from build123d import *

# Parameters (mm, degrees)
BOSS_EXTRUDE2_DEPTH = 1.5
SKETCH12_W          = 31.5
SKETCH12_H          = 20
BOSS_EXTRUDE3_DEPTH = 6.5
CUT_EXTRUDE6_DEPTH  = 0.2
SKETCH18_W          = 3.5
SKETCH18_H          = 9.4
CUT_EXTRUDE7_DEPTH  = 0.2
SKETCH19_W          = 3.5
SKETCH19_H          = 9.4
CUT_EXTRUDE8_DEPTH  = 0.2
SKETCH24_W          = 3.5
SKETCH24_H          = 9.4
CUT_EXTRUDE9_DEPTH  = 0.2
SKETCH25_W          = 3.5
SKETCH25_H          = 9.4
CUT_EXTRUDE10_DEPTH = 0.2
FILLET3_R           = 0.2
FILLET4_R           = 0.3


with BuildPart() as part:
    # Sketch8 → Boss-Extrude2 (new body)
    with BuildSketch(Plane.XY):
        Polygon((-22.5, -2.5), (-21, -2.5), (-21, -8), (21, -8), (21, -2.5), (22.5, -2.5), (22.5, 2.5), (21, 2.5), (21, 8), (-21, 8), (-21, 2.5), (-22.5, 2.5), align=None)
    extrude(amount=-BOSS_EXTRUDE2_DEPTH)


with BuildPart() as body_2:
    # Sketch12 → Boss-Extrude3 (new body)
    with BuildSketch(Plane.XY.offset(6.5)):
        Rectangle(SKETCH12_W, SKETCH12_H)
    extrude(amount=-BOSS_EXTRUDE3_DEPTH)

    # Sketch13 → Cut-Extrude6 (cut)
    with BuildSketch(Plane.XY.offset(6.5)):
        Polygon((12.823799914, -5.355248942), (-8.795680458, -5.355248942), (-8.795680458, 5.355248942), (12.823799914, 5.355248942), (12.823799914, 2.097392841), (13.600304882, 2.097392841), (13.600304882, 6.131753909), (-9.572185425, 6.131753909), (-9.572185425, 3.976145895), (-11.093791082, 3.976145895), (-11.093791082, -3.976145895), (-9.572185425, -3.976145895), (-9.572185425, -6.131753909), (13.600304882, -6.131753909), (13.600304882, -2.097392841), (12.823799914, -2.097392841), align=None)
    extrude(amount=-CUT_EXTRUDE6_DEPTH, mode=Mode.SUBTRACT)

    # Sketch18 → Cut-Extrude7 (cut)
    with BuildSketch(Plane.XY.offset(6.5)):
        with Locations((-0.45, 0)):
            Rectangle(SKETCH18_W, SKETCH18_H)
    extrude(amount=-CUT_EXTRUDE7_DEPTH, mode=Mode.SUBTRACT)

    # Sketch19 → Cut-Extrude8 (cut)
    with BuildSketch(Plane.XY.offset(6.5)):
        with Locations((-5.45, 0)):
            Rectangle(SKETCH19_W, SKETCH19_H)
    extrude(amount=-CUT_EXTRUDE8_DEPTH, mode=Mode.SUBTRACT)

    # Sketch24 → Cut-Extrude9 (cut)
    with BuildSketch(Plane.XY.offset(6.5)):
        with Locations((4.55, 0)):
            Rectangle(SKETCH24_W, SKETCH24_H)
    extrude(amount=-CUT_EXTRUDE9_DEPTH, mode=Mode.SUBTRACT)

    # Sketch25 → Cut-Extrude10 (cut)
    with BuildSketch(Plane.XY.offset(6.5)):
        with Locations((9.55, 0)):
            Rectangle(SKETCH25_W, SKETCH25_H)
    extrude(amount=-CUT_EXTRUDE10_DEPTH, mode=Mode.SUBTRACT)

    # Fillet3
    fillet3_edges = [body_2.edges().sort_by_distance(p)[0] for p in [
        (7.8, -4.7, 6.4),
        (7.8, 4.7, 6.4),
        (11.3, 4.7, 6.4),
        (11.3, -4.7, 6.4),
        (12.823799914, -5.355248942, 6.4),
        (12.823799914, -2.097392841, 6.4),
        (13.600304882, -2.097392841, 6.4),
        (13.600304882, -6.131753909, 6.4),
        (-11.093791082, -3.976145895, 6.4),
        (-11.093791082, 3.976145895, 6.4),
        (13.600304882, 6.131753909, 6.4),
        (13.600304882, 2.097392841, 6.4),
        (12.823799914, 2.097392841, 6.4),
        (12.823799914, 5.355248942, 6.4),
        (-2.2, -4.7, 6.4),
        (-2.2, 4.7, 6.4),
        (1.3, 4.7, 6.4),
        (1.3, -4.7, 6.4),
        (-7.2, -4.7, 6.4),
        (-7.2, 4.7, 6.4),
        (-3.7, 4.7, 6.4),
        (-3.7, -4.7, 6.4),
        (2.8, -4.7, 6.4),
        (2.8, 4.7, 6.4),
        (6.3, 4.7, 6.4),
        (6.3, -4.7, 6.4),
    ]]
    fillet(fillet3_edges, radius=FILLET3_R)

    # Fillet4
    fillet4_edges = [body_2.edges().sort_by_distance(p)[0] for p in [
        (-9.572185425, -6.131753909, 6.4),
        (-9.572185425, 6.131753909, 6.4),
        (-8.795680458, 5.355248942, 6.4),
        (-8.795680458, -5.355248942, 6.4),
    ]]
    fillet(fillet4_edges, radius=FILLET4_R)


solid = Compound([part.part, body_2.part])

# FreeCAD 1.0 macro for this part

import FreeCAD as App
import Part
import Sketcher
Q = App.Units.Quantity


def edges_at(feature, points):
    """Names of the edges that pass closest to the given points."""
    edges = feature.Shape.Edges
    near = lambda p: min(range(len(edges)), key=lambda i: edges[i].distToShape(Part.Vertex(*p))[0])
    return sorted({f"Edge{near(p) + 1}" for p in points})

doc = App.newDocument("Part")
params = doc.addObject("Spreadsheet::Sheet", "Params")
for row, (alias, value) in enumerate([
    ("sketch1_width", "42 mm"),
    ("sketch1_height", "5 mm"),
    ("sketch1_width2", "1.5 mm"),
    ("sketch1_height2", "5.5 mm"),
    ("pad1_length", "1.5 mm"),
    ("sketch2_height", "20 mm"),
    ("sketch2_width", "31.5 mm"),
    ("pad2_length", "6.5 mm"),
    ("pocket1_length", "0.2 mm"),
    ("sketch4_width", "3.5 mm"),
    ("sketch4_height", "9.4 mm"),
    ("pocket2_length", "0.2 mm"),
    ("sketch5_width", "3.5 mm"),
    ("sketch5_height", "9.4 mm"),
    ("pocket3_length", "0.2 mm"),
    ("sketch6_width", "3.5 mm"),
    ("sketch6_height", "9.4 mm"),
    ("pocket4_length", "0.2 mm"),
    ("sketch7_width", "3.5 mm"),
    ("sketch7_height", "9.4 mm"),
    ("pocket5_length", "0.2 mm"),
    ("fillet_radius", "0.2 mm"),
    ("fillet2_radius", "0.3 mm"),
], start=1):
    params.set(f"A{row}", alias)
    params.set(f"B{row}", "=" + value)
    params.setAlias(f"B{row}", alias)

body = doc.addObject("PartDesign::Body", "Body")

# Sketch on XY plane
sketch1 = body.newObject("Sketcher::SketchObject", "Sketch")
sketch1.AttachmentSupport = (doc.getObject("XY_Plane"), [""])
sketch1.MapMode = "FlatFace"
sketch1.addGeometry([
    Part.LineSegment(App.Vector(-22.5, -2.5, 0), App.Vector(-21, -2.5, 0)),  # 0
    Part.LineSegment(App.Vector(-21, -2.5, 0), App.Vector(-21, -8, 0)),  # 1
    Part.LineSegment(App.Vector(-21, -8, 0), App.Vector(21, -8, 0)),  # 2
    Part.LineSegment(App.Vector(21, -8, 0), App.Vector(21, -2.5, 0)),  # 3
    Part.LineSegment(App.Vector(21, -2.5, 0), App.Vector(22.5, -2.5, 0)),  # 4
    Part.LineSegment(App.Vector(22.5, -2.5, 0), App.Vector(22.5, 2.5, 0)),  # 5
    Part.LineSegment(App.Vector(22.5, 2.5, 0), App.Vector(21, 2.5, 0)),  # 6
    Part.LineSegment(App.Vector(21, 2.5, 0), App.Vector(21, 8, 0)),  # 7
    Part.LineSegment(App.Vector(21, 8, 0), App.Vector(-21, 8, 0)),  # 8
    Part.LineSegment(App.Vector(-21, 8, 0), App.Vector(-21, 2.5, 0)),  # 9
    Part.LineSegment(App.Vector(-21, 2.5, 0), App.Vector(-22.5, 2.5, 0)),  # 10
    Part.LineSegment(App.Vector(-22.5, 2.5, 0), App.Vector(-22.5, -2.5, 0)),  # 11
], False)
sketch1.addConstraint([
    Sketcher.Constraint("Coincident", 0, 2, 1, 1),
    Sketcher.Constraint("Coincident", 1, 2, 2, 1),
    Sketcher.Constraint("Coincident", 2, 2, 3, 1),
    Sketcher.Constraint("Coincident", 3, 2, 4, 1),
    Sketcher.Constraint("Coincident", 4, 2, 5, 1),
    Sketcher.Constraint("Coincident", 5, 2, 6, 1),
    Sketcher.Constraint("Coincident", 6, 2, 7, 1),
    Sketcher.Constraint("Coincident", 7, 2, 8, 1),
    Sketcher.Constraint("Coincident", 8, 2, 9, 1),
    Sketcher.Constraint("Coincident", 9, 2, 10, 1),
    Sketcher.Constraint("Coincident", 10, 2, 11, 1),
    Sketcher.Constraint("Coincident", 11, 2, 0, 1),
    Sketcher.Constraint("Horizontal", 0),
    Sketcher.Constraint("Vertical", 1),
    Sketcher.Constraint("Horizontal", 2),
    Sketcher.Constraint("Vertical", 3),
    Sketcher.Constraint("Horizontal", 4),
    Sketcher.Constraint("Vertical", 5),
    Sketcher.Constraint("Horizontal", 6),
    Sketcher.Constraint("Vertical", 7),
    Sketcher.Constraint("Horizontal", 8),
    Sketcher.Constraint("Vertical", 9),
    Sketcher.Constraint("Horizontal", 10),
    Sketcher.Constraint("Vertical", 11),
    Sketcher.Constraint("Symmetric", 0, 2, 6, 2, -1, 1),
    Sketcher.Constraint("Symmetric", 2, 2, 8, 2, -1, 1),
    Sketcher.Constraint("Symmetric", 4, 2, 10, 2, -1, 1),
    Sketcher.Constraint("Symmetric", 0, 2, 3, 2, -2),
    Sketcher.Constraint("DistanceX", 2, 1, 2, 2, Q("42 mm")),
    Sketcher.Constraint("DistanceY", 5, 1, 5, 2, Q("5 mm")),
    Sketcher.Constraint("DistanceX", 0, 1, 0, 2, Q("1.5 mm")),
    Sketcher.Constraint("DistanceY", 1, 2, 1, 1, Q("5.5 mm")),
])
sketch1.setExpression("Constraints[28]", "Params.sketch1_width")
sketch1.setExpression("Constraints[29]", "Params.sketch1_height")
sketch1.setExpression("Constraints[30]", "Params.sketch1_width2")
sketch1.setExpression("Constraints[31]", "Params.sketch1_height2")
pad1 = body.newObject("PartDesign::Pad", "Pad")
pad1.Profile = sketch1
pad1.setExpression("Length", "Params.pad1_length")
pad1.Reversed = True
body2 = doc.addObject("PartDesign::Body", "Body001")

# Sketch on XY plane
sketch2 = body2.newObject("Sketcher::SketchObject", "Sketch001")
sketch2.AttachmentSupport = (doc.getObject("XY_Plane001"), [""])
sketch2.MapMode = "FlatFace"
sketch2.AttachmentOffset = App.Placement(App.Vector(0, 0, 6.5), App.Rotation())
sketch2.addGeometry([
    Part.LineSegment(App.Vector(-16, 10, 0), App.Vector(-16, -10, 0)),
    Part.LineSegment(App.Vector(-16, -10, 0), App.Vector(16, -10, 0)),
    Part.LineSegment(App.Vector(16, -10, 0), App.Vector(16, 10, 0)),
    Part.LineSegment(App.Vector(16, 10, 0), App.Vector(-16, 10, 0)),
], False)
sketch2.addConstraint([
    Sketcher.Constraint("Coincident", 0, 2, 1, 1),
    Sketcher.Constraint("Coincident", 1, 2, 2, 1),
    Sketcher.Constraint("Coincident", 2, 2, 3, 1),
    Sketcher.Constraint("Coincident", 3, 2, 0, 1),
    Sketcher.Constraint("Vertical", 0),
    Sketcher.Constraint("Horizontal", 1),
    Sketcher.Constraint("Vertical", 2),
    Sketcher.Constraint("Horizontal", 3),
    Sketcher.Constraint("Symmetric", 0, 2, 2, 2, -1, 1),
    Sketcher.Constraint("DistanceY", 0, 2, 0, 1, Q("20 mm")),
    Sketcher.Constraint("DistanceX", 1, 1, 1, 2, Q("31.5 mm")),
])
sketch2.setExpression("Constraints[9]", "Params.sketch2_height")
sketch2.setExpression("Constraints[10]", "Params.sketch2_width")
pad2 = body2.newObject("PartDesign::Pad", "Pad001")
pad2.Profile = sketch2
pad2.setExpression("Length", "Params.pad2_length")
pad2.Reversed = True

# Sketch on XY plane
sketch3 = body2.newObject("Sketcher::SketchObject", "Sketch002")
sketch3.AttachmentSupport = (doc.getObject("XY_Plane001"), [""])
sketch3.MapMode = "FlatFace"
sketch3.AttachmentOffset = App.Placement(App.Vector(0, 0, 6.5), App.Rotation())
sketch3.addGeometry([
    Part.LineSegment(App.Vector(12.8, -5.4, 0), App.Vector(-8.8, -5.4, 0)),  # 0
    Part.LineSegment(App.Vector(-8.8, -5.4, 0), App.Vector(-8.8, 5.4, 0)),  # 1
    Part.LineSegment(App.Vector(-8.8, 5.4, 0), App.Vector(12.8, 5.4, 0)),  # 2
    Part.LineSegment(App.Vector(12.8, 5.4, 0), App.Vector(12.8, 2.1, 0)),  # 3
    Part.LineSegment(App.Vector(12.8, 2.1, 0), App.Vector(13.6, 2.1, 0)),  # 4
    Part.LineSegment(App.Vector(13.6, 2.1, 0), App.Vector(13.6, 6.1, 0)),  # 5
    Part.LineSegment(App.Vector(13.6, 6.1, 0), App.Vector(-9.6, 6.1, 0)),  # 6
    Part.LineSegment(App.Vector(-9.6, 6.1, 0), App.Vector(-9.6, 4, 0)),  # 7
    Part.LineSegment(App.Vector(-9.6, 4, 0), App.Vector(-11.1, 4, 0)),  # 8
    Part.LineSegment(App.Vector(-11.1, 4, 0), App.Vector(-11.1, -4, 0)),  # 9
    Part.LineSegment(App.Vector(-11.1, -4, 0), App.Vector(-9.6, -4, 0)),  # 10
    Part.LineSegment(App.Vector(-9.6, -4, 0), App.Vector(-9.6, -6.1, 0)),  # 11
    Part.LineSegment(App.Vector(-9.6, -6.1, 0), App.Vector(13.6, -6.1, 0)),  # 12
    Part.LineSegment(App.Vector(13.6, -6.1, 0), App.Vector(13.6, -2.1, 0)),  # 13
    Part.LineSegment(App.Vector(13.6, -2.1, 0), App.Vector(12.8, -2.1, 0)),  # 14
    Part.LineSegment(App.Vector(12.8, -2.1, 0), App.Vector(12.8, -5.4, 0)),  # 15
], False)
sketch3.addConstraint([
    Sketcher.Constraint("Coincident", 0, 2, 1, 1),
    Sketcher.Constraint("Coincident", 1, 2, 2, 1),
    Sketcher.Constraint("Coincident", 2, 2, 3, 1),
    Sketcher.Constraint("Coincident", 3, 2, 4, 1),
    Sketcher.Constraint("Coincident", 4, 2, 5, 1),
    Sketcher.Constraint("Coincident", 5, 2, 6, 1),
    Sketcher.Constraint("Coincident", 6, 2, 7, 1),
    Sketcher.Constraint("Coincident", 7, 2, 8, 1),
    Sketcher.Constraint("Coincident", 8, 2, 9, 1),
    Sketcher.Constraint("Coincident", 9, 2, 10, 1),
    Sketcher.Constraint("Coincident", 10, 2, 11, 1),
    Sketcher.Constraint("Coincident", 11, 2, 12, 1),
    Sketcher.Constraint("Coincident", 12, 2, 13, 1),
    Sketcher.Constraint("Coincident", 13, 2, 14, 1),
    Sketcher.Constraint("Coincident", 14, 2, 15, 1),
    Sketcher.Constraint("Coincident", 15, 2, 0, 1),
    Sketcher.Constraint("Horizontal", 0),
    Sketcher.Constraint("Vertical", 1),
    Sketcher.Constraint("Horizontal", 2),
    Sketcher.Constraint("Vertical", 3),
    Sketcher.Constraint("Horizontal", 4),
    Sketcher.Constraint("Vertical", 5),
    Sketcher.Constraint("Horizontal", 6),
    Sketcher.Constraint("Vertical", 7),
    Sketcher.Constraint("Horizontal", 8),
    Sketcher.Constraint("Vertical", 9),
    Sketcher.Constraint("Horizontal", 10),
    Sketcher.Constraint("Vertical", 11),
    Sketcher.Constraint("Horizontal", 12),
    Sketcher.Constraint("Vertical", 13),
    Sketcher.Constraint("Horizontal", 14),
    Sketcher.Constraint("Vertical", 15),
    Sketcher.Constraint("Symmetric", 7, 2, 10, 2, -1),
    Sketcher.Constraint("Symmetric", 5, 2, 12, 2, -1),
    Sketcher.Constraint("Symmetric", 3, 2, 14, 2, -1),
    Sketcher.Constraint("Equal", 3, 15),
    Sketcher.Constraint("DistanceX", 0, 2, 0, 1, Q("21.61948 mm")),
    Sketcher.Constraint("DistanceX", 6, 2, 6, 1, Q("23.17249 mm")),
    Sketcher.Constraint("DistanceY", 5, 1, 5, 2, Q("4.034361 mm")),
    Sketcher.Constraint("DistanceY", 7, 2, 7, 1, Q("2.155608 mm")),
    Sketcher.Constraint("DistanceY", 9, 2, 9, 1, Q("7.952292 mm")),
    Sketcher.Constraint("DistanceX", -1, 1, 2, 2, Q("12.8238 mm")),
    Sketcher.Constraint("DistanceX", 4, 1, 4, 2, Q("0.776505 mm")),
    Sketcher.Constraint("DistanceX", 8, 2, 8, 1, Q("1.521606 mm")),
    Sketcher.Constraint("DistanceY", 1, 1, 1, 2, Q("10.710498 mm")),
])
pocket1 = body2.newObject("PartDesign::Pocket", "Pocket")
pocket1.Profile = sketch3
pocket1.setExpression("Length", "Params.pocket1_length")

# Sketch on XY plane
sketch4 = body2.newObject("Sketcher::SketchObject", "Sketch003")
sketch4.AttachmentSupport = (doc.getObject("XY_Plane001"), [""])
sketch4.MapMode = "FlatFace"
sketch4.AttachmentOffset = App.Placement(App.Vector(0, 0, 6.5), App.Rotation())
sketch4.addGeometry([
    Part.LineSegment(App.Vector(-2.2, 4.7, 0), App.Vector(-2.2, -4.7, 0)),
    Part.LineSegment(App.Vector(-2.2, -4.7, 0), App.Vector(1.3, -4.7, 0)),
    Part.LineSegment(App.Vector(1.3, -4.7, 0), App.Vector(1.3, 4.7, 0)),
    Part.LineSegment(App.Vector(1.3, 4.7, 0), App.Vector(-2.2, 4.7, 0)),
], False)
sketch4.addConstraint([
    Sketcher.Constraint("Coincident", 0, 2, 1, 1),
    Sketcher.Constraint("Coincident", 1, 2, 2, 1),
    Sketcher.Constraint("Coincident", 2, 2, 3, 1),
    Sketcher.Constraint("Coincident", 3, 2, 0, 1),
    Sketcher.Constraint("Vertical", 0),
    Sketcher.Constraint("Horizontal", 1),
    Sketcher.Constraint("Vertical", 2),
    Sketcher.Constraint("Horizontal", 3),
    Sketcher.Constraint("DistanceX", 1, 1, 1, 2, Q("3.5 mm")),
    Sketcher.Constraint("DistanceY", 0, 2, 0, 1, Q("9.4 mm")),
    Sketcher.Constraint("DistanceX", 0, 2, -1, 1, Q("2.2 mm")),
    Sketcher.Constraint("DistanceY", 0, 2, -1, 1, Q("4.7 mm")),
])
sketch4.setExpression("Constraints[8]", "Params.sketch4_width")
sketch4.setExpression("Constraints[9]", "Params.sketch4_height")
pocket2 = body2.newObject("PartDesign::Pocket", "Pocket001")
pocket2.Profile = sketch4
pocket2.setExpression("Length", "Params.pocket2_length")

# Sketch on XY plane
sketch5 = body2.newObject("Sketcher::SketchObject", "Sketch004")
sketch5.AttachmentSupport = (doc.getObject("XY_Plane001"), [""])
sketch5.MapMode = "FlatFace"
sketch5.AttachmentOffset = App.Placement(App.Vector(0, 0, 6.5), App.Rotation())
sketch5.addGeometry([
    Part.LineSegment(App.Vector(-7.2, 4.7, 0), App.Vector(-7.2, -4.7, 0)),
    Part.LineSegment(App.Vector(-7.2, -4.7, 0), App.Vector(-3.7, -4.7, 0)),
    Part.LineSegment(App.Vector(-3.7, -4.7, 0), App.Vector(-3.7, 4.7, 0)),
    Part.LineSegment(App.Vector(-3.7, 4.7, 0), App.Vector(-7.2, 4.7, 0)),
], False)
sketch5.addConstraint([
    Sketcher.Constraint("Coincident", 0, 2, 1, 1),
    Sketcher.Constraint("Coincident", 1, 2, 2, 1),
    Sketcher.Constraint("Coincident", 2, 2, 3, 1),
    Sketcher.Constraint("Coincident", 3, 2, 0, 1),
    Sketcher.Constraint("Vertical", 0),
    Sketcher.Constraint("Horizontal", 1),
    Sketcher.Constraint("Vertical", 2),
    Sketcher.Constraint("Horizontal", 3),
    Sketcher.Constraint("DistanceX", 1, 1, 1, 2, Q("3.5 mm")),
    Sketcher.Constraint("DistanceY", 0, 2, 0, 1, Q("9.4 mm")),
    Sketcher.Constraint("DistanceX", 0, 2, -1, 1, Q("7.2 mm")),
    Sketcher.Constraint("DistanceY", 0, 2, -1, 1, Q("4.7 mm")),
])
sketch5.setExpression("Constraints[8]", "Params.sketch5_width")
sketch5.setExpression("Constraints[9]", "Params.sketch5_height")
pocket3 = body2.newObject("PartDesign::Pocket", "Pocket002")
pocket3.Profile = sketch5
pocket3.setExpression("Length", "Params.pocket3_length")

# Sketch on XY plane
sketch6 = body2.newObject("Sketcher::SketchObject", "Sketch005")
sketch6.AttachmentSupport = (doc.getObject("XY_Plane001"), [""])
sketch6.MapMode = "FlatFace"
sketch6.AttachmentOffset = App.Placement(App.Vector(0, 0, 6.5), App.Rotation())
sketch6.addGeometry([
    Part.LineSegment(App.Vector(2.8, 4.7, 0), App.Vector(2.8, -4.7, 0)),
    Part.LineSegment(App.Vector(2.8, -4.7, 0), App.Vector(6.3, -4.7, 0)),
    Part.LineSegment(App.Vector(6.3, -4.7, 0), App.Vector(6.3, 4.7, 0)),
    Part.LineSegment(App.Vector(6.3, 4.7, 0), App.Vector(2.8, 4.7, 0)),
], False)
sketch6.addConstraint([
    Sketcher.Constraint("Coincident", 0, 2, 1, 1),
    Sketcher.Constraint("Coincident", 1, 2, 2, 1),
    Sketcher.Constraint("Coincident", 2, 2, 3, 1),
    Sketcher.Constraint("Coincident", 3, 2, 0, 1),
    Sketcher.Constraint("Vertical", 0),
    Sketcher.Constraint("Horizontal", 1),
    Sketcher.Constraint("Vertical", 2),
    Sketcher.Constraint("Horizontal", 3),
    Sketcher.Constraint("DistanceX", 1, 1, 1, 2, Q("3.5 mm")),
    Sketcher.Constraint("DistanceY", 0, 2, 0, 1, Q("9.4 mm")),
    Sketcher.Constraint("DistanceX", -1, 1, 0, 2, Q("2.8 mm")),
    Sketcher.Constraint("DistanceY", 0, 2, -1, 1, Q("4.7 mm")),
])
sketch6.setExpression("Constraints[8]", "Params.sketch6_width")
sketch6.setExpression("Constraints[9]", "Params.sketch6_height")
pocket4 = body2.newObject("PartDesign::Pocket", "Pocket003")
pocket4.Profile = sketch6
pocket4.setExpression("Length", "Params.pocket4_length")

# Sketch on XY plane
sketch7 = body2.newObject("Sketcher::SketchObject", "Sketch006")
sketch7.AttachmentSupport = (doc.getObject("XY_Plane001"), [""])
sketch7.MapMode = "FlatFace"
sketch7.AttachmentOffset = App.Placement(App.Vector(0, 0, 6.5), App.Rotation())
sketch7.addGeometry([
    Part.LineSegment(App.Vector(7.8, 4.7, 0), App.Vector(7.8, -4.7, 0)),
    Part.LineSegment(App.Vector(7.8, -4.7, 0), App.Vector(11.3, -4.7, 0)),
    Part.LineSegment(App.Vector(11.3, -4.7, 0), App.Vector(11.3, 4.7, 0)),
    Part.LineSegment(App.Vector(11.3, 4.7, 0), App.Vector(7.8, 4.7, 0)),
], False)
sketch7.addConstraint([
    Sketcher.Constraint("Coincident", 0, 2, 1, 1),
    Sketcher.Constraint("Coincident", 1, 2, 2, 1),
    Sketcher.Constraint("Coincident", 2, 2, 3, 1),
    Sketcher.Constraint("Coincident", 3, 2, 0, 1),
    Sketcher.Constraint("Vertical", 0),
    Sketcher.Constraint("Horizontal", 1),
    Sketcher.Constraint("Vertical", 2),
    Sketcher.Constraint("Horizontal", 3),
    Sketcher.Constraint("DistanceX", 1, 1, 1, 2, Q("3.5 mm")),
    Sketcher.Constraint("DistanceY", 0, 2, 0, 1, Q("9.4 mm")),
    Sketcher.Constraint("DistanceX", -1, 1, 0, 2, Q("7.8 mm")),
    Sketcher.Constraint("DistanceY", 0, 2, -1, 1, Q("4.7 mm")),
])
sketch7.setExpression("Constraints[8]", "Params.sketch7_width")
sketch7.setExpression("Constraints[9]", "Params.sketch7_height")
pocket5 = body2.newObject("PartDesign::Pocket", "Pocket004")
pocket5.Profile = sketch7
pocket5.setExpression("Length", "Params.pocket5_length")
doc.recompute()

fillet = body2.newObject("PartDesign::Fillet", "Fillet")
fillet.Base = (pocket5, edges_at(pocket5, [
    (7.8, -4.7, 6.4),
    (7.8, 4.7, 6.4),
    (11.3, 4.7, 6.4),
    (11.3, -4.7, 6.4),
    (12.824, -5.355, 6.4),
    (12.824, -2.097, 6.4),
    (13.6, -2.097, 6.4),
    (13.6, -6.132, 6.4),
    (-11.094, -3.976, 6.4),
    (-11.094, 3.976, 6.4),
    (13.6, 6.132, 6.4),
    (13.6, 2.097, 6.4),
    (12.824, 2.097, 6.4),
    (12.824, 5.355, 6.4),
    (-2.2, -4.7, 6.4),
    (-2.2, 4.7, 6.4),
    (1.3, 4.7, 6.4),
    (1.3, -4.7, 6.4),
    (-7.2, -4.7, 6.4),
    (-7.2, 4.7, 6.4),
    (-3.7, 4.7, 6.4),
    (-3.7, -4.7, 6.4),
    (2.8, -4.7, 6.4),
    (2.8, 4.7, 6.4),
    (6.3, 4.7, 6.4),
    (6.3, -4.7, 6.4),
]))
fillet.setExpression("Radius", "Params.fillet_radius")
doc.recompute()

fillet2 = body2.newObject("PartDesign::Fillet", "Fillet001")
fillet2.Base = (fillet, edges_at(fillet, [
    (-9.572, -6.132, 6.4),
    (-9.572, 6.132, 6.4),
    (-8.796, 5.355, 6.4),
    (-8.796, -5.355, 6.4),
]))
fillet2.setExpression("Radius", "Params.fillet2_radius")

doc.recompute()
